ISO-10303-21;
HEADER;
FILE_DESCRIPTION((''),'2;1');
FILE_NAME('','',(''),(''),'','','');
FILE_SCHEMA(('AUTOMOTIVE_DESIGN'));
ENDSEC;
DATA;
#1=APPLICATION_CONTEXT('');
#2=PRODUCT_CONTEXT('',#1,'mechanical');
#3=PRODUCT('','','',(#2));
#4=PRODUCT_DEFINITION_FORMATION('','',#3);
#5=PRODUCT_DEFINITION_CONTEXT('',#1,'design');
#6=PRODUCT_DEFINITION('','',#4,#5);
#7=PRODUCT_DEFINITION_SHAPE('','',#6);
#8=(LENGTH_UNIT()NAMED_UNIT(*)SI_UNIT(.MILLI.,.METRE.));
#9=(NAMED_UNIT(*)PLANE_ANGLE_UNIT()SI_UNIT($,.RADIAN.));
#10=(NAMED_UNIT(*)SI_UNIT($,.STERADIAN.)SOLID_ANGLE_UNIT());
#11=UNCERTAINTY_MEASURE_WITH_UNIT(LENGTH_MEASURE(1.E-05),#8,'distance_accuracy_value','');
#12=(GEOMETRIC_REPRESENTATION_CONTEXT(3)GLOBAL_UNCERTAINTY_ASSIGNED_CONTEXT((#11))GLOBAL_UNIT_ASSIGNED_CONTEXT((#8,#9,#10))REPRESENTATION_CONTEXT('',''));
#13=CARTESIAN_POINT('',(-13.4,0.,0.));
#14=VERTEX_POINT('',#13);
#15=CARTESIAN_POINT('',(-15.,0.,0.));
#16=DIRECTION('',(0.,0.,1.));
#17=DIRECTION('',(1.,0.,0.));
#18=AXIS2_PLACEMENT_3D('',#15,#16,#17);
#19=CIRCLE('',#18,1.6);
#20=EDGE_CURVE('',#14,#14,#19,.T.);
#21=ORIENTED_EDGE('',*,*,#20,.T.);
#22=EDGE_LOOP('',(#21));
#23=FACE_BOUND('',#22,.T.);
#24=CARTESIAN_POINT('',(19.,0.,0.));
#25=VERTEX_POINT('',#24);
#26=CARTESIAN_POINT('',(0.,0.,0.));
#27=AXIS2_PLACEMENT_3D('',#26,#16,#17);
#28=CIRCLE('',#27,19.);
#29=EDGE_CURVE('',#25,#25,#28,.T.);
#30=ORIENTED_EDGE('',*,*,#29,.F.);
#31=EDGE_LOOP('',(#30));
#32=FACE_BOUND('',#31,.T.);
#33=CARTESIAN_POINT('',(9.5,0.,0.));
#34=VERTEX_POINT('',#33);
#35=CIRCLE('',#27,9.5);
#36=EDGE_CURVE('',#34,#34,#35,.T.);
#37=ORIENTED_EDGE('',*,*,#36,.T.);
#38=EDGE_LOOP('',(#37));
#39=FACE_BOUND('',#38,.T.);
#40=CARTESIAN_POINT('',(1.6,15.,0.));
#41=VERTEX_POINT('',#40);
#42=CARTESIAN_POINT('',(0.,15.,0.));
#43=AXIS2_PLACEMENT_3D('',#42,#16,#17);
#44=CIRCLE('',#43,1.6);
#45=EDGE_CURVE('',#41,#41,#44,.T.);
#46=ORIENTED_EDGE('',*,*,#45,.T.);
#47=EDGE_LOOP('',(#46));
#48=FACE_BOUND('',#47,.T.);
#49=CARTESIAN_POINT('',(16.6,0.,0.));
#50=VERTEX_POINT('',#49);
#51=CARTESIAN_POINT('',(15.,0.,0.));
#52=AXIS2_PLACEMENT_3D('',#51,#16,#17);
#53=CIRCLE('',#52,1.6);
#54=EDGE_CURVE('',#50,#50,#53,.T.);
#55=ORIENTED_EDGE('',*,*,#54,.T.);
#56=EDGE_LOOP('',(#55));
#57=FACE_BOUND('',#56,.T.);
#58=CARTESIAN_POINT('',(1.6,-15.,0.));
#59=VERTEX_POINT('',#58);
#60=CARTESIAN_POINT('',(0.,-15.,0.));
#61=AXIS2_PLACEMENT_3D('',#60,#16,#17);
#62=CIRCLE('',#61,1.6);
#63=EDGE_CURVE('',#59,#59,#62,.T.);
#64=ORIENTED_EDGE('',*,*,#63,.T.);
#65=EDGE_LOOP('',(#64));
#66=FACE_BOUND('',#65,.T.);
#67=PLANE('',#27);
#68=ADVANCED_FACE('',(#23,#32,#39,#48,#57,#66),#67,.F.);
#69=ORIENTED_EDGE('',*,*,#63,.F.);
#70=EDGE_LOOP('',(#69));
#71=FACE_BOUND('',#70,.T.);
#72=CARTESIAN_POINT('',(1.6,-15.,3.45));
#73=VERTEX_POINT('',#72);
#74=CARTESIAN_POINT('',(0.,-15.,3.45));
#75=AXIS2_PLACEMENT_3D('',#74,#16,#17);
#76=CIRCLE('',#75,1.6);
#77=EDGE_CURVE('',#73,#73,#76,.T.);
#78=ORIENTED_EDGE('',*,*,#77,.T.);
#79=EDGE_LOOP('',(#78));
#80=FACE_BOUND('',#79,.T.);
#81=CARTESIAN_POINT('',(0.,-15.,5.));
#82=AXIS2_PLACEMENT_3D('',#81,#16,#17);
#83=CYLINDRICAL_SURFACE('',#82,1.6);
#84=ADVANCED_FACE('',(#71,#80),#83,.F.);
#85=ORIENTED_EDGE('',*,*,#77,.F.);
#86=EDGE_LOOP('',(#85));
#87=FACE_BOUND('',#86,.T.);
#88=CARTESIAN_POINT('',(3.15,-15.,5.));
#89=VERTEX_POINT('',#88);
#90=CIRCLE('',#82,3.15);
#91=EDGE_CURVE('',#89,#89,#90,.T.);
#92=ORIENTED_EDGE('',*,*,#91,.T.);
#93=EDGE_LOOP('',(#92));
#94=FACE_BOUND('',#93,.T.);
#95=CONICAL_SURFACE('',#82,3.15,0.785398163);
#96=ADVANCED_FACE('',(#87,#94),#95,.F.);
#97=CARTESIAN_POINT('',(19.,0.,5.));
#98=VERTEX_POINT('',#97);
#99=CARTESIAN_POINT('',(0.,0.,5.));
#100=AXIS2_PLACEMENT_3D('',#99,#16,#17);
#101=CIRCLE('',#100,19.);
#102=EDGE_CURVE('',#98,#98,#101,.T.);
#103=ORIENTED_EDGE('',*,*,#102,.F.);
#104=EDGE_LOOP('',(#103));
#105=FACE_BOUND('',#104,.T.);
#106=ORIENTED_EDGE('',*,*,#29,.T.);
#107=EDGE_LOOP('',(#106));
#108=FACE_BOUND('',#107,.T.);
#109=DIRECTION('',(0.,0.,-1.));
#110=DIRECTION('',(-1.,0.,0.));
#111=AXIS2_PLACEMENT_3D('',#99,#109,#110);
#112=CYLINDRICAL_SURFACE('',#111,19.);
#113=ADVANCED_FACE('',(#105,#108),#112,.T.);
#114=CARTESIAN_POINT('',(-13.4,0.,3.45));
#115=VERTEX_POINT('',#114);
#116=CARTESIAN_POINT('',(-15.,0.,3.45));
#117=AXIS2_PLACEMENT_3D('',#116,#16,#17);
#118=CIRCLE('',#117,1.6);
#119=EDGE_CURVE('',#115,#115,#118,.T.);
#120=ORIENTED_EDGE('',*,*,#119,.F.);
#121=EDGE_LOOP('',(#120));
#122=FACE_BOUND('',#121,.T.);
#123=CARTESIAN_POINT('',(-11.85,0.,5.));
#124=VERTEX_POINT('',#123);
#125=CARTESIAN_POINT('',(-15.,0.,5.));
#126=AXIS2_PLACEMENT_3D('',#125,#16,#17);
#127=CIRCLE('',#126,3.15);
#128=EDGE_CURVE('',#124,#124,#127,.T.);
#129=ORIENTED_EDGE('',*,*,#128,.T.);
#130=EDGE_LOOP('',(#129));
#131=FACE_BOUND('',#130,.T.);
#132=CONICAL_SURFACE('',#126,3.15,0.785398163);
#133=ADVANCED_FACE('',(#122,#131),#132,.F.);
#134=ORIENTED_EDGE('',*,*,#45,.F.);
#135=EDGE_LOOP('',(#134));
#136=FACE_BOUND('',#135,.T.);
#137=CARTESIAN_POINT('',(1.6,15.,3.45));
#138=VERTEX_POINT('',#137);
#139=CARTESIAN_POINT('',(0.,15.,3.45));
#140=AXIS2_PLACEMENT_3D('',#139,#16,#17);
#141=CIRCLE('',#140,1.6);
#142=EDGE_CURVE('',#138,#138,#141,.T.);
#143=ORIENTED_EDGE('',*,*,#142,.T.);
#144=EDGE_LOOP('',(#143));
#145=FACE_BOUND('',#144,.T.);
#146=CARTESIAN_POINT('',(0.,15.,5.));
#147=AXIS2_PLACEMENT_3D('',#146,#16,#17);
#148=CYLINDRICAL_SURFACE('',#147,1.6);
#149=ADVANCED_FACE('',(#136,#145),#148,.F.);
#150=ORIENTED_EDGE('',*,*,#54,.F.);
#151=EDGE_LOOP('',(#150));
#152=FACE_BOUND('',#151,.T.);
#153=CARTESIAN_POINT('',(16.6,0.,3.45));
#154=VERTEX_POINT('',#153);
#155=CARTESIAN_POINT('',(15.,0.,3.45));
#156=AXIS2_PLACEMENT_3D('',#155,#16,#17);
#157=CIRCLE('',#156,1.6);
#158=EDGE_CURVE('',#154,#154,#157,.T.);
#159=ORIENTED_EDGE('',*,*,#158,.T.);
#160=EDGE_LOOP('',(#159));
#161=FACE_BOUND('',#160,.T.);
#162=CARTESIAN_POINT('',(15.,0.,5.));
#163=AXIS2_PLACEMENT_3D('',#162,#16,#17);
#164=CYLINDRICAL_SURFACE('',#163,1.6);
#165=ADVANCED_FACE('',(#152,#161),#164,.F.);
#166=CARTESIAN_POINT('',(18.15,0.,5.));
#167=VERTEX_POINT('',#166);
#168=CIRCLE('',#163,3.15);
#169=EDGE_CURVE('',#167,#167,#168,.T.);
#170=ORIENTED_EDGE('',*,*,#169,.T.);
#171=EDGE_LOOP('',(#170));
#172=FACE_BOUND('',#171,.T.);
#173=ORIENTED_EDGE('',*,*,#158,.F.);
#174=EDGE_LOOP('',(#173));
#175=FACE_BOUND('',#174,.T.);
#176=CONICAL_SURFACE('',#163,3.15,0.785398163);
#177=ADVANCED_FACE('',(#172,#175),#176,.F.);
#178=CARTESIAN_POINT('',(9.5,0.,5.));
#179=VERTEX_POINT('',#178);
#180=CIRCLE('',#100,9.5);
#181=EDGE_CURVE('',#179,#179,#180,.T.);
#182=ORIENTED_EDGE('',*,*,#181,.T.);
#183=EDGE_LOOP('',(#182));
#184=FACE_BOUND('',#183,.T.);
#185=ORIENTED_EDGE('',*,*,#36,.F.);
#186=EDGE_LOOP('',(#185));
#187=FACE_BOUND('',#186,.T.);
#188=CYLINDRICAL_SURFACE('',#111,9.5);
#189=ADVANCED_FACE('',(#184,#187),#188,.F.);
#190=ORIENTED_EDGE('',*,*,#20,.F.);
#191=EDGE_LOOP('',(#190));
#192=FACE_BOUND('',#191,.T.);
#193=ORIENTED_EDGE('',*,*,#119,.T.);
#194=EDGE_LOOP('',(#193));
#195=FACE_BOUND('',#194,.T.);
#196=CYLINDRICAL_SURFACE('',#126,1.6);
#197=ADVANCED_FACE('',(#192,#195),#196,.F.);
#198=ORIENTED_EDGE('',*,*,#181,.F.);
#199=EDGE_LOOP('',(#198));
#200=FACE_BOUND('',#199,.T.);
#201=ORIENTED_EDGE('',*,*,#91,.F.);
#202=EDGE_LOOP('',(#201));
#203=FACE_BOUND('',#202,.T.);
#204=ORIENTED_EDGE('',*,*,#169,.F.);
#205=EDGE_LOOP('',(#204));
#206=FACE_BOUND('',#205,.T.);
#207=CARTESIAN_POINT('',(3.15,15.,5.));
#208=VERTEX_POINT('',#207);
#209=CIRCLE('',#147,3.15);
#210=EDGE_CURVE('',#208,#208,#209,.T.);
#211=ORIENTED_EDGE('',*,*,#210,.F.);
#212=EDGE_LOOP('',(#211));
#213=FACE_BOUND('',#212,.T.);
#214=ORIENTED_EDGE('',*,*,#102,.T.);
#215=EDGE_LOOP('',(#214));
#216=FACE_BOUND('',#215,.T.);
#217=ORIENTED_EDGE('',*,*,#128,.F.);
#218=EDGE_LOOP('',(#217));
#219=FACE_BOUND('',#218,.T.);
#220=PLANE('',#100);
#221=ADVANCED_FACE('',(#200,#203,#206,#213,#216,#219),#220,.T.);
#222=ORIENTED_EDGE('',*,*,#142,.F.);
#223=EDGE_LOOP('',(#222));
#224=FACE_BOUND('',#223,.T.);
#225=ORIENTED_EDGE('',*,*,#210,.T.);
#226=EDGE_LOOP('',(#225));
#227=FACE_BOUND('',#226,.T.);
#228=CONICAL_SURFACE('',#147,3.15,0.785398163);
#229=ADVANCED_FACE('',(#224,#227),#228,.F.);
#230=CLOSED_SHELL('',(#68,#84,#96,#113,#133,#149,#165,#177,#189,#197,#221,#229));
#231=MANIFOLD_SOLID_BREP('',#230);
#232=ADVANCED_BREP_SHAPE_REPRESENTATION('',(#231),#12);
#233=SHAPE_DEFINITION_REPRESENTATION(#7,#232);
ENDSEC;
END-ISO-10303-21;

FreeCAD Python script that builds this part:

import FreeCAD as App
import Part
import Sketcher
from FreeCAD import Vector

doc = App.newDocument("Part")
body = doc.addObject("PartDesign::Body", "Body")

# Sketch on XY plane
sketch1 = body.newObject("Sketcher::SketchObject", "Sketch")
sketch1.AttachmentSupport = (doc.getObject("XY_Plane"), [""])
sketch1.MapMode = "FlatFace"
sketch1.addGeometry([
    Part.Circle(Vector(0, 0, 0), Vector(0, 0, 1), 19),
    Part.Circle(Vector(0, 0, 0), Vector(0, 0, 1), 9.5),
], False)
sketch1.addConstraint([
    Sketcher.Constraint("Coincident", 0, 3, -1, 1),
    Sketcher.Constraint("Coincident", 1, 3, -1, 1),
    Sketcher.Constraint("Diameter", 0, 38.0),
    Sketcher.Constraint("Diameter", 1, 19.0),
])
pad1 = body.newObject("PartDesign::Pad", "Pad")
pad1.Profile = sketch1
pad1.Length = 5

# Sketch on XY plane
sketch2 = body.newObject("Sketcher::SketchObject", "Sketch001")
sketch2.AttachmentSupport = (doc.getObject("XY_Plane"), [""])
sketch2.MapMode = "FlatFace"
sketch2.AttachmentOffset = App.Placement(Vector(0, 0, 5), App.Rotation())
sketch2.addGeometry([
    Part.Circle(Vector(0, 15, 0), Vector(0, 0, 1), 1.6),
    Part.Circle(Vector(15, 0, 0), Vector(0, 0, 1), 1.6),
    Part.Circle(Vector(0, -15, 0), Vector(0, 0, 1), 1.6),
    Part.Circle(Vector(-15, 0, 0), Vector(0, 0, 1), 1.6),
], False)
sketch2.addConstraint([
    Sketcher.Constraint("Equal", 0, 1),
    Sketcher.Constraint("Equal", 1, 2),
    Sketcher.Constraint("Equal", 2, 3),
    Sketcher.Constraint("Symmetric", 0, 3, 2, 3, -1, 1),
    Sketcher.Constraint("Symmetric", 1, 3, 3, 3, -1, 1),
    Sketcher.Constraint("PointOnObject", 0, 3, -2),
    Sketcher.Constraint("PointOnObject", 1, 3, -1),
    Sketcher.Constraint("Diameter", 0, 3.2),
    Sketcher.Constraint("DistanceY", -1, 1, 0, 3, 15.0),
    Sketcher.Constraint("DistanceX", -1, 1, 1, 3, 15.0),
])
doc.recompute()
hole = body.newObject("PartDesign::Hole", "Hole")
hole.Profile = sketch2
hole.ThreadType = "None"
hole.Diameter = 3.2
hole.DepthType = "ThroughAll"
hole.HoleCutType = "Countersink"
hole.HoleCutDiameter = 6.3
hole.HoleCutCountersinkAngle = 90

doc.recompute()
